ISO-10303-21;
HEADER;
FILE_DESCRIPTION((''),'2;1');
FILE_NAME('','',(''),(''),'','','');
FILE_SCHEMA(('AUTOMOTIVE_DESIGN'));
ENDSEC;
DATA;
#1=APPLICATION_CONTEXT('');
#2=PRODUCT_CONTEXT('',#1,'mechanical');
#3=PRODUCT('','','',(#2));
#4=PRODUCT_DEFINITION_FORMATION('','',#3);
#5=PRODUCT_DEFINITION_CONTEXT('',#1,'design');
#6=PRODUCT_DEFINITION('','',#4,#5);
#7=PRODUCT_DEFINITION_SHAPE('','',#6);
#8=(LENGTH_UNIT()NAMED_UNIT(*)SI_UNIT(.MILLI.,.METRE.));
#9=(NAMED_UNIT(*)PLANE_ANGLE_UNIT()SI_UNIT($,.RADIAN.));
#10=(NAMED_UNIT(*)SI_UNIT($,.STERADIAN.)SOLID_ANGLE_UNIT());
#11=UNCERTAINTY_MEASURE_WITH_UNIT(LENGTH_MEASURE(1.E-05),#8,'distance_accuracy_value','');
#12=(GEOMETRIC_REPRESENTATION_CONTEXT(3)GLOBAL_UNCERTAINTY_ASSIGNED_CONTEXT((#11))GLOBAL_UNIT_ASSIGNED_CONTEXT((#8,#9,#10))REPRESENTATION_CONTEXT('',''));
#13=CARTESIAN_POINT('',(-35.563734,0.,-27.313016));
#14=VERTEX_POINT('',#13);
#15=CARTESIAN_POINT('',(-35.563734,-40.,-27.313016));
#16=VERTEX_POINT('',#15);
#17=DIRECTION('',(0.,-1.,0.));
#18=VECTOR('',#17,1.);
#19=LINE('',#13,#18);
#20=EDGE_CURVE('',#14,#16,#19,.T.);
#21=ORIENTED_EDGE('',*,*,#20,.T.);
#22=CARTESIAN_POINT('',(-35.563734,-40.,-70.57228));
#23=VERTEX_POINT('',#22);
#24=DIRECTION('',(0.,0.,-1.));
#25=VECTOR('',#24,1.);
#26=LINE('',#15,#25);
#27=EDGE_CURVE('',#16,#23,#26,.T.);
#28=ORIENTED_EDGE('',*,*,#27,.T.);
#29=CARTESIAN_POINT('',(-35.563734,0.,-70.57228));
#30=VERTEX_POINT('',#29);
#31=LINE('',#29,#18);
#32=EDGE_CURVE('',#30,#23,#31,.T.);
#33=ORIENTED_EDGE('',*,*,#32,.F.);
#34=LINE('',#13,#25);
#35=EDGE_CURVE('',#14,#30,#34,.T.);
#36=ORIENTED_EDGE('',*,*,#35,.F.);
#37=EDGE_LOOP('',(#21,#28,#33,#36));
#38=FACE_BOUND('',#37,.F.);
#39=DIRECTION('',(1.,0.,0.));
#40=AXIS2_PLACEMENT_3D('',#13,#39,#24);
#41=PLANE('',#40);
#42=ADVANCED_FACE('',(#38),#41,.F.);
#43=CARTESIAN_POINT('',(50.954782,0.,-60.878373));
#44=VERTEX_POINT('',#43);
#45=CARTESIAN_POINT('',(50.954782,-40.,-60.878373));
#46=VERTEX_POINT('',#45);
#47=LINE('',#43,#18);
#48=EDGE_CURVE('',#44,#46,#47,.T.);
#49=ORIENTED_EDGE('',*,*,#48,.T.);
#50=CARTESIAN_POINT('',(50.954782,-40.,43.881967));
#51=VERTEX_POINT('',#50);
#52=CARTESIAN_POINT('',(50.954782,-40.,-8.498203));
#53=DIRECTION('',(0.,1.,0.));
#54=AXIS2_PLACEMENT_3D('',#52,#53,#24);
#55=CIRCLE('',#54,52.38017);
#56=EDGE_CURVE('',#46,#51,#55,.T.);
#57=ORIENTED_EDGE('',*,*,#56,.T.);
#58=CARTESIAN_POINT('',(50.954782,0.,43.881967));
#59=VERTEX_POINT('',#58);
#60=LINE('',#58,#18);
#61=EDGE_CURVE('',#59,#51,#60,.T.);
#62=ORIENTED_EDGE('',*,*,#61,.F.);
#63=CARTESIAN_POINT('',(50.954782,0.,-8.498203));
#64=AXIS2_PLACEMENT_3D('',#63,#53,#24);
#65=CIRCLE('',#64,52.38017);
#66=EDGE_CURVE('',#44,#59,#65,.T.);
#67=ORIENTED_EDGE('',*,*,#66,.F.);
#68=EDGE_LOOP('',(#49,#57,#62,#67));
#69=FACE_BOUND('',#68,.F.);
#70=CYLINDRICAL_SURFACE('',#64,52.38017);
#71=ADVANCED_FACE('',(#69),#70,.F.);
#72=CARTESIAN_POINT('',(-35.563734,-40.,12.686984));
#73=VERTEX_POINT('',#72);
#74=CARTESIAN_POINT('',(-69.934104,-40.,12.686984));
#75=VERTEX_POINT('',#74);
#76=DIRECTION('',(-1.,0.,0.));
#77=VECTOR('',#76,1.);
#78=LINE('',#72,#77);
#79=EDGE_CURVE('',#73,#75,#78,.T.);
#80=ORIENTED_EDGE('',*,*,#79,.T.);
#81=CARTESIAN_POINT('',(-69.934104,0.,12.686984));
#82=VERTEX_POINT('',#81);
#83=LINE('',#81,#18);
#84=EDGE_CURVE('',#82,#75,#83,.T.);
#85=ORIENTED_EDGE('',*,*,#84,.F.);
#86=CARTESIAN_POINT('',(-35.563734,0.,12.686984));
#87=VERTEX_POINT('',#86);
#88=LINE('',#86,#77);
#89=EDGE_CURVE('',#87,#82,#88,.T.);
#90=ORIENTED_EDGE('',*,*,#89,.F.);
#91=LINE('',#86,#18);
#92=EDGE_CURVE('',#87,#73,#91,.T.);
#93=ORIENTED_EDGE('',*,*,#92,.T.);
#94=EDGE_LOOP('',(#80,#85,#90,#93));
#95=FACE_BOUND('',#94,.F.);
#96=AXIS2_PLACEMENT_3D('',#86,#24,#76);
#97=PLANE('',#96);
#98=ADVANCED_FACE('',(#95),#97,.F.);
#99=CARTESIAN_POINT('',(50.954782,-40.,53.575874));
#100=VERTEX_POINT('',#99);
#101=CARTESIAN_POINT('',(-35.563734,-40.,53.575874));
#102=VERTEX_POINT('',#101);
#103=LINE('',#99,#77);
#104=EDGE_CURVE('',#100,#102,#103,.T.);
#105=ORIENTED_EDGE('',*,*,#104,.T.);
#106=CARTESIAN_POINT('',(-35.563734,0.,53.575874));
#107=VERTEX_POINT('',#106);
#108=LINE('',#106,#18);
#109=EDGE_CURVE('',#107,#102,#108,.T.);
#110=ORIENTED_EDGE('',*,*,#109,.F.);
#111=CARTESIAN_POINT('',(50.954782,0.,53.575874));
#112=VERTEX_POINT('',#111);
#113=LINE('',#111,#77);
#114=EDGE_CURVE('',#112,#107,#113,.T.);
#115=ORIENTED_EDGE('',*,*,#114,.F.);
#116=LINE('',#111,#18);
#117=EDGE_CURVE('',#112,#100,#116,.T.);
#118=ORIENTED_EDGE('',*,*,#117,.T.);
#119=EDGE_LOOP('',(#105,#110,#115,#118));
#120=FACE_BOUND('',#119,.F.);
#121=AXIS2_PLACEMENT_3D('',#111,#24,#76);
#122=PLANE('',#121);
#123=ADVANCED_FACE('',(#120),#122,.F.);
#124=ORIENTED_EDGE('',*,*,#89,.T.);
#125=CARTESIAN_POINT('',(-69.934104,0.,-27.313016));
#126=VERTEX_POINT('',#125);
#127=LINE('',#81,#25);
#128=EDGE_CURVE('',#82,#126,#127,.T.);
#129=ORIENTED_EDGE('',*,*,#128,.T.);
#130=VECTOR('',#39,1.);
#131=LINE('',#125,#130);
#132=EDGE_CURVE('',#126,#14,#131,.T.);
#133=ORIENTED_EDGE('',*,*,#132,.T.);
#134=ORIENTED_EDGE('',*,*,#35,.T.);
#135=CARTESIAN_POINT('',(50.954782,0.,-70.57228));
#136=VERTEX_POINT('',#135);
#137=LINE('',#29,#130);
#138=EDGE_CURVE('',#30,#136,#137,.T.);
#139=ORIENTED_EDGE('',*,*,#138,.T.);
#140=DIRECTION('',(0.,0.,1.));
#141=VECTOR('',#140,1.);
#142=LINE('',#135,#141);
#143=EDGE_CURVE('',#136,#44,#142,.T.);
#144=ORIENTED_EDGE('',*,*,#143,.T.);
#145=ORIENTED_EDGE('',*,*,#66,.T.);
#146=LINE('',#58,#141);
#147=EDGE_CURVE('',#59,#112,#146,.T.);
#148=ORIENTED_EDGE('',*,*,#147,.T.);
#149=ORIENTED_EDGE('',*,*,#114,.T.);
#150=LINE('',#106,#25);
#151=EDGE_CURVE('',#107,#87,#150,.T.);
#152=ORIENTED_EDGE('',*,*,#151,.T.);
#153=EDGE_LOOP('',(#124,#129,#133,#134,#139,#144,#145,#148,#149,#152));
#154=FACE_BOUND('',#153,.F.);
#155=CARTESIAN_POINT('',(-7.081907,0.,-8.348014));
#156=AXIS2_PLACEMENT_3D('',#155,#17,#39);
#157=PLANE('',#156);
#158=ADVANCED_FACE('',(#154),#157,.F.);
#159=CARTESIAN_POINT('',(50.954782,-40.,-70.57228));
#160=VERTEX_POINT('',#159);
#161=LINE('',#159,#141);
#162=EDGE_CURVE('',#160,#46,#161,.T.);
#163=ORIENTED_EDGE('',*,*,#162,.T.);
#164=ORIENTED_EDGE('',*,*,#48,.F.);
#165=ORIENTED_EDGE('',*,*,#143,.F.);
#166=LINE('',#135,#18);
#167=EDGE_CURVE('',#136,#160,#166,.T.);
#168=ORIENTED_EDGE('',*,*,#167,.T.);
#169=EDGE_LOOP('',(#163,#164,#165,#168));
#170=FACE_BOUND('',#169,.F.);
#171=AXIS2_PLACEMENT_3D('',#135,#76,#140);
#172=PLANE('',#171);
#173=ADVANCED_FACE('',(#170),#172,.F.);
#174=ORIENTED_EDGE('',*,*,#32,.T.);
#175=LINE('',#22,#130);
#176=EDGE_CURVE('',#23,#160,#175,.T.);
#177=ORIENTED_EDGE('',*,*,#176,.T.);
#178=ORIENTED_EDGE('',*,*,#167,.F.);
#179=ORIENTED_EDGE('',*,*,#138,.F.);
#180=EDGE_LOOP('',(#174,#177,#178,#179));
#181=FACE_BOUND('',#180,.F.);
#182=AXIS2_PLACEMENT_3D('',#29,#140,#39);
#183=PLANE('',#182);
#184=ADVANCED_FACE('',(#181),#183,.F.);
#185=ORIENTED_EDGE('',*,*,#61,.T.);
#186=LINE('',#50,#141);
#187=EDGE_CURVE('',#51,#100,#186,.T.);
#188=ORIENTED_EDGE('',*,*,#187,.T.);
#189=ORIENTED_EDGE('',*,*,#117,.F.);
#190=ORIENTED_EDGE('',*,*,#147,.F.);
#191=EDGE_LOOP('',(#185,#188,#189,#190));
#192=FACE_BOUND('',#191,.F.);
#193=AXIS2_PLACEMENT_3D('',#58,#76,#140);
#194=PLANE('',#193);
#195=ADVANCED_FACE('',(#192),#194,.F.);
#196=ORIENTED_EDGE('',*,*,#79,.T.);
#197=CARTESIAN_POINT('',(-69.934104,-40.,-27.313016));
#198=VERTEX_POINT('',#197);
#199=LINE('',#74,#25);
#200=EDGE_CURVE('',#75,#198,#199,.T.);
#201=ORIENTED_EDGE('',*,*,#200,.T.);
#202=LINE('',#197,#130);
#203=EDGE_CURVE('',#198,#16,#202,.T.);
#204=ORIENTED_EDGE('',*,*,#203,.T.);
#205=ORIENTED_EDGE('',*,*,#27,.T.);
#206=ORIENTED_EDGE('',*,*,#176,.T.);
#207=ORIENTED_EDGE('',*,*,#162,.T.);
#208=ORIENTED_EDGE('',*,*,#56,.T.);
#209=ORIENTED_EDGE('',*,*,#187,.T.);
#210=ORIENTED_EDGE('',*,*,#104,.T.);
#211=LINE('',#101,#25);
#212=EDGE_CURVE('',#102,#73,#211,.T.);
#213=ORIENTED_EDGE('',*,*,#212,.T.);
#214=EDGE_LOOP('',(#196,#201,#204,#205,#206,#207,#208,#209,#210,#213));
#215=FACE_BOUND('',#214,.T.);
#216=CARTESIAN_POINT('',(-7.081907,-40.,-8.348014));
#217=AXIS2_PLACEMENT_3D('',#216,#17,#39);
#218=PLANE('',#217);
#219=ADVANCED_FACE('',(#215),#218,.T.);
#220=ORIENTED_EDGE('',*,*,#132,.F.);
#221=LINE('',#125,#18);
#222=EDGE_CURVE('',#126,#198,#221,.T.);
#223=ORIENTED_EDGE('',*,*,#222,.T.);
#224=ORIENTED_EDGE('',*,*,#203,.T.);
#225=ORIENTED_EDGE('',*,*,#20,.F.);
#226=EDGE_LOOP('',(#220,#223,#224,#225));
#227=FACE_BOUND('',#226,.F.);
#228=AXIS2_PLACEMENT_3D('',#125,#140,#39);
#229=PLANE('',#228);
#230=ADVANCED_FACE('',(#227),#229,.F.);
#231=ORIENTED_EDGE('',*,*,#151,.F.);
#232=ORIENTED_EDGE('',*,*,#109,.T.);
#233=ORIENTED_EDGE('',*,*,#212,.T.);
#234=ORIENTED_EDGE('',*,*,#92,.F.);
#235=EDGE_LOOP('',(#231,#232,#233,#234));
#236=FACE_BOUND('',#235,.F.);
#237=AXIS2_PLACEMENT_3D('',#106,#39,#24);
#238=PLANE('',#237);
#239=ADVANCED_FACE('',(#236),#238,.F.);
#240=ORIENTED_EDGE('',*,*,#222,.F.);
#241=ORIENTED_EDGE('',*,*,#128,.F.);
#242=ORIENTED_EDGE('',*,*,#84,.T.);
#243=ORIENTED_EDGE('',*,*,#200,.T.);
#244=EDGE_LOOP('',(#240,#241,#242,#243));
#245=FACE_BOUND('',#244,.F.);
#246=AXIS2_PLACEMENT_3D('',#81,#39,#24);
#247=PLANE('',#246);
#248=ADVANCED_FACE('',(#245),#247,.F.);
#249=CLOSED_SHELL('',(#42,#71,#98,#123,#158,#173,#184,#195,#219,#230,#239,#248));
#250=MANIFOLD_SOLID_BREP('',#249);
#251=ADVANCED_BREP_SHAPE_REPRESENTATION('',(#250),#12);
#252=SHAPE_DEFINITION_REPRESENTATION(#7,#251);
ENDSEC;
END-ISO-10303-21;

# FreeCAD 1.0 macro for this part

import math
import FreeCAD as App
import Part
import Sketcher
from FreeCAD import Vector

doc = App.newDocument("Part")
body = doc.addObject("PartDesign::Body", "Body")

sketch1 = body.newObject("Sketcher::SketchObject", "Sketch")
sketch1.AttachmentSupport = (doc.getObject("XZ_Plane"), [""])
sketch1.MapMode = "FlatFace"
sketch1.addGeometry([
    Part.LineSegment(Vector(51, 54, 0), Vector(-36, 54, 0)),
    Part.LineSegment(Vector(-36, 54, 0), Vector(-36, 13, 0)),
    Part.LineSegment(Vector(-36, 13, 0), Vector(-70, 13, 0)),
    Part.LineSegment(Vector(-70, 13, 0), Vector(-70, -27, 0)),
    Part.LineSegment(Vector(-70, -27, 0), Vector(-36, -27, 0)),
    Part.LineSegment(Vector(-36, -27, 0), Vector(-36, -71, 0)),
    Part.LineSegment(Vector(-36, -71, 0), Vector(51, -71, 0)),
    Part.LineSegment(Vector(51, -71, 0), Vector(51, -61, 0)),
    Part.ArcOfCircle(Part.Circle(Vector(51, -8, 0), Vector(0, 0, 1), 52), math.radians(90), math.radians(270)),
    Part.LineSegment(Vector(51, 44, 0), Vector(51, 54, 0)),
], False)
sketch1.addConstraint([
    Sketcher.Constraint("Coincident", 0, 2, 1, 1),
    Sketcher.Constraint("Coincident", 1, 2, 2, 1),
    Sketcher.Constraint("Coincident", 2, 2, 3, 1),
    Sketcher.Constraint("Coincident", 3, 2, 4, 1),
    Sketcher.Constraint("Coincident", 4, 2, 5, 1),
    Sketcher.Constraint("Coincident", 5, 2, 6, 1),
    Sketcher.Constraint("Coincident", 6, 2, 7, 1),
    Sketcher.Constraint("Coincident", 7, 2, 8, 2),
    Sketcher.Constraint("Coincident", 8, 1, 9, 1),
    Sketcher.Constraint("Coincident", 9, 2, 0, 1),
    Sketcher.Constraint("Horizontal", 0),
    Sketcher.Constraint("Vertical", 1),
    Sketcher.Constraint("Horizontal", 2),
    Sketcher.Constraint("Vertical", 3),
    Sketcher.Constraint("Horizontal", 4),
    Sketcher.Constraint("Vertical", 5),
    Sketcher.Constraint("Horizontal", 6),
    Sketcher.Constraint("Vertical", 7),
    Sketcher.Constraint("Vertical", 9),
    Sketcher.Constraint("Vertical", 1, 2, 4, 2),
    Sketcher.Constraint("Vertical", 8, 3, 6, 2),
    Sketcher.Constraint("Vertical", 7, 2, 8, 1),
    Sketcher.Constraint("Equal", 7, 9),
    Sketcher.Constraint("DistanceY", 3, 2, 3, 1, 40.0),
    Sketcher.Constraint("Radius", 8, 52.38017),
    Sketcher.Constraint("DistanceX", 2, 2, 2, 1, 34.37037),
    Sketcher.Constraint("DistanceY", 1, 2, 1, 1, 40.88889),
    Sketcher.Constraint("DistanceX", 0, 2, 0, 1, 86.518516),
    Sketcher.Constraint("DistanceY", 5, 2, 5, 1, 43.259264),
    Sketcher.Constraint("DistanceY", 5, 2, -1, 1, 70.57228),
    Sketcher.Constraint("DistanceX", -1, 1, 8, 3, 50.954782),
])
pad1 = body.newObject("PartDesign::Pad", "Pad")
pad1.Profile = sketch1
pad1.Length = 40

doc.recompute()
